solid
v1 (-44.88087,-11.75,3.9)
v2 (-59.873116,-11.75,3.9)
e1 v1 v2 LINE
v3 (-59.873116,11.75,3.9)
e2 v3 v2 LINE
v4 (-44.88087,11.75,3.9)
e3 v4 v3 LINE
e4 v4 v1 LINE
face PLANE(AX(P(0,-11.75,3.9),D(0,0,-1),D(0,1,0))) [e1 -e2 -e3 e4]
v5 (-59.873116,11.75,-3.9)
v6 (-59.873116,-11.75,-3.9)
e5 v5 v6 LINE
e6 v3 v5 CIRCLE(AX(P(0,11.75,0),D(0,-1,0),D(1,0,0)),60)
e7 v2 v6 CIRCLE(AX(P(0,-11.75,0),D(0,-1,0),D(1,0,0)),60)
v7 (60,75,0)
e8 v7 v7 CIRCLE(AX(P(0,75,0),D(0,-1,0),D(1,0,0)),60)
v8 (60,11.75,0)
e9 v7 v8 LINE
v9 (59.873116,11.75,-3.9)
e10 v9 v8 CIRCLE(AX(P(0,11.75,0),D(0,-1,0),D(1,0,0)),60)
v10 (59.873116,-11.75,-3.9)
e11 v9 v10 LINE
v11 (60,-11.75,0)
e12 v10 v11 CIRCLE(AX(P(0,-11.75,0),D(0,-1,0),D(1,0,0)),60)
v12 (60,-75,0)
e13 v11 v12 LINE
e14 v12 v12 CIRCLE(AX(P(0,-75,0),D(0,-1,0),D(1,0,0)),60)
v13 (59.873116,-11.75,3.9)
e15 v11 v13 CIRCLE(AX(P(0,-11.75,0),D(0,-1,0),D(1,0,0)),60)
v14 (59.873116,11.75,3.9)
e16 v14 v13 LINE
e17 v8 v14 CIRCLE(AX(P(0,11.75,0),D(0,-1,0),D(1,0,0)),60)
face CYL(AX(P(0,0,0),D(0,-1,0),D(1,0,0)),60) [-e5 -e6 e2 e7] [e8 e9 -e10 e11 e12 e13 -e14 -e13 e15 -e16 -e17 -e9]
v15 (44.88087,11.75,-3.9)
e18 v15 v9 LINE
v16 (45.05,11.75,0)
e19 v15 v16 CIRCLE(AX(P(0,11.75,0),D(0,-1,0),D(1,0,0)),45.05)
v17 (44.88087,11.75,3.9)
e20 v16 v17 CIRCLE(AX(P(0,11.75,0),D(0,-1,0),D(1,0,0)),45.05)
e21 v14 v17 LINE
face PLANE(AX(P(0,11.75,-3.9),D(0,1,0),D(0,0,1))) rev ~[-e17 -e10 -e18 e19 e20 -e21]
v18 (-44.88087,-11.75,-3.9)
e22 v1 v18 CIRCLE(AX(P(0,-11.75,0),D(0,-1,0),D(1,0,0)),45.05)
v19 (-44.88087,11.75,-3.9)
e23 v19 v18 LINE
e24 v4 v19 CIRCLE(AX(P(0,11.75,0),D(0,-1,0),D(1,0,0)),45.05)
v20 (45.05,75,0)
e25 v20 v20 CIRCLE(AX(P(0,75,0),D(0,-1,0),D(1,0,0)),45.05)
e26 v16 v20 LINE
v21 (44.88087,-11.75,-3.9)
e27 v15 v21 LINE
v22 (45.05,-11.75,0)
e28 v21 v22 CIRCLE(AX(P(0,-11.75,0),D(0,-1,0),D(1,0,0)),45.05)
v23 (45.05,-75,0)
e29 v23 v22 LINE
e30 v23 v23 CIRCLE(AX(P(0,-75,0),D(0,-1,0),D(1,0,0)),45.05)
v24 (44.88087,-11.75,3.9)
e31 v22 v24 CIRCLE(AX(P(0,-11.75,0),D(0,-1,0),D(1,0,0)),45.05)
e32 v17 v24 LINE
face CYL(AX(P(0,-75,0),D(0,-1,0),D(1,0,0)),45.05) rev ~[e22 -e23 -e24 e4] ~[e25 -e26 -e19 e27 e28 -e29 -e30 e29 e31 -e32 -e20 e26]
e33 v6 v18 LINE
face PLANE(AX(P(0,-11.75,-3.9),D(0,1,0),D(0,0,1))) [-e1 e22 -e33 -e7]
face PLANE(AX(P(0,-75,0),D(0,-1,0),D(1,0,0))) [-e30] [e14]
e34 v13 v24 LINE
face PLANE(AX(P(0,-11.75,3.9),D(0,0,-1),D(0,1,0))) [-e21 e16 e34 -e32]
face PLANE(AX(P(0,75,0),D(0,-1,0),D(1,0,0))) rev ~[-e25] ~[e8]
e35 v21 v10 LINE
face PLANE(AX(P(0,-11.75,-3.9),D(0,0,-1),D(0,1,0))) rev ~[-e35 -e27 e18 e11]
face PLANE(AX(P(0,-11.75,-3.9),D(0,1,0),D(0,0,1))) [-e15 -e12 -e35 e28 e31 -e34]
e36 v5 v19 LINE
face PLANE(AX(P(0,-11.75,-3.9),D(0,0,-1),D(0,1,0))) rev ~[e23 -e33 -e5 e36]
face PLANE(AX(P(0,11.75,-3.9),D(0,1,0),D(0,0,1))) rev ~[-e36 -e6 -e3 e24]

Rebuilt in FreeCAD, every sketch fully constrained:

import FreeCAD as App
import Part
import Sketcher
from FreeCAD import Vector
Q = App.Units.Quantity


def add_polygon(sketch, points):
    """Adds a closed chain of lines whose ends are joined by coincident constraints."""
    first, n = sketch.GeometryCount, len(points)
    for a, b in zip(points, points[1:] + points[:1]):
        sketch.addGeometry(Part.LineSegment(App.Vector(*a, 0), App.Vector(*b, 0)), False)
    for i in range(n):
        sketch.addConstraint(Sketcher.Constraint("Coincident", first + i, 2, first + (i + 1) % n, 1))

doc = App.newDocument("Part")
body = doc.addObject("PartDesign::Body", "Body")

# Sketch on XZ plane
sketch1 = doc.addObject("Sketcher::SketchObject", "Sketch")
body.addObject(sketch1)
sketch1.AttachmentSupport = (doc.XZ_Plane, [""])
sketch1.MapMode = "FlatFace"
sketch1.addGeometry(Part.Circle(Vector(0, 0, 0), Vector(0, 0, 1), 60), False)
sketch1.addConstraint(Sketcher.Constraint("Coincident", 0, 3, -1, 1))
sketch1.addConstraint(Sketcher.Constraint("Diameter", 0, Q("120 mm")))
pad1 = doc.addObject("PartDesign::Pad", "Pad")
body.addObject(pad1)
pad1.Profile = sketch1
pad1.Length = 150
pad1.Midplane = True

# Sketch on XZ plane
sketch2 = doc.addObject("Sketcher::SketchObject", "Sketch001")
body.addObject(sketch2)
sketch2.AttachmentSupport = (doc.XZ_Plane, [""])
sketch2.MapMode = "FlatFace"
sketch2.AttachmentOffset = App.Placement(Vector(0, 0, 75), App.Rotation())
sketch2.addGeometry(Part.Circle(Vector(0, 0, 0), Vector(0, 0, 1), 45.05), False)
sketch2.addConstraint(Sketcher.Constraint("Coincident", 0, 3, -1, 1))
sketch2.addConstraint(Sketcher.Constraint("Diameter", 0, Q("90.1 mm")))
pocket1 = doc.addObject("PartDesign::Pocket", "Pocket")
body.addObject(pocket1)
pocket1.Profile = sketch2
pocket1.Length = 300

# Sketch on YZ plane
sketch3 = doc.addObject("Sketcher::SketchObject", "Sketch002")
body.addObject(sketch3)
sketch3.AttachmentSupport = (doc.YZ_Plane, [""])
sketch3.MapMode = "FlatFace"
add_polygon(sketch3, [(-11.75, 3.9), (-11.75, -3.9), (11.75, -3.9), (11.75, 3.9)])  # lines 0-3
sketch3.addConstraint(Sketcher.Constraint("Vertical", 0))
sketch3.addConstraint(Sketcher.Constraint("Horizontal", 1))
sketch3.addConstraint(Sketcher.Constraint("Vertical", 2))
sketch3.addConstraint(Sketcher.Constraint("Horizontal", 3))
sketch3.addConstraint(Sketcher.Constraint("Symmetric", 0, 2, 2, 2, -1, 1))
sketch3.addConstraint(Sketcher.Constraint("DistanceX", 1, 1, 1, 2, Q("23.5 mm")))
sketch3.addConstraint(Sketcher.Constraint("DistanceY", 0, 2, 0, 1, Q("7.8 mm")))
pocket2 = doc.addObject("PartDesign::Pocket", "Pocket001")
body.addObject(pocket2)
pocket2.Profile = sketch3
pocket2.Length = 157.8
pocket2.Midplane = True

doc.recompute()
